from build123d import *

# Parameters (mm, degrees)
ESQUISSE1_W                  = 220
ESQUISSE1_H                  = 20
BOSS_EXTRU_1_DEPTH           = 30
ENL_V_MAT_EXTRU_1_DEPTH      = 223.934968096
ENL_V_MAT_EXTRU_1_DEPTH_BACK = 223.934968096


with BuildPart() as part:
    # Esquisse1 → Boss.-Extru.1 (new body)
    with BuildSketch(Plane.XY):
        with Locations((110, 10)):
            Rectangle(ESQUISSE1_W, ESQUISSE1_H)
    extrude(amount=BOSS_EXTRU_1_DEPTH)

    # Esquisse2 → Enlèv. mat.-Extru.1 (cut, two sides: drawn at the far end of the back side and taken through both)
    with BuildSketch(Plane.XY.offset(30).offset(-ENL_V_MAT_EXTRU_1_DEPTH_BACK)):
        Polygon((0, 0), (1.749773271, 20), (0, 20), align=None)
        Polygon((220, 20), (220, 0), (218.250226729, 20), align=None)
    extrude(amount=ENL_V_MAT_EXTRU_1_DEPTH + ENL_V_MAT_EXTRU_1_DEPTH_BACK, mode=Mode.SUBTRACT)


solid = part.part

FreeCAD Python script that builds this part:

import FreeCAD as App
import Part
import Sketcher

V = App.Vector
Q = App.Units.Quantity

doc = App.newDocument("Part")
body = doc.addObject("PartDesign::Body", "Body")

sketch1 = body.newObject("Sketcher::SketchObject", "Sketch")
sketch1.AttachmentSupport = (doc.getObject("XY_Plane"), [""])
sketch1.MapMode = "FlatFace"
sketch1.addGeometry([
    Part.LineSegment(V(0, 20, 0), V(0, 0, 0)),
    Part.LineSegment(V(0, 0, 0), V(220, 0, 0)),
    Part.LineSegment(V(220, 0, 0), V(220, 20, 0)),
    Part.LineSegment(V(220, 20, 0), V(0, 20, 0)),
], False)
sketch1.addConstraint([
    Sketcher.Constraint("Coincident", 0, 2, 1, 1),
    Sketcher.Constraint("Coincident", 1, 2, 2, 1),
    Sketcher.Constraint("Coincident", 2, 2, 3, 1),
    Sketcher.Constraint("Coincident", 3, 2, 0, 1),
    Sketcher.Constraint("Vertical", 0),
    Sketcher.Constraint("Horizontal", 1),
    Sketcher.Constraint("Vertical", 2),
    Sketcher.Constraint("Horizontal", 3),
    Sketcher.Constraint("Coincident", 0, 2, -1, 1),
    Sketcher.Constraint("DistanceX", 1, 1, 1, 2, 220.0),
    Sketcher.Constraint("DistanceY", 0, 2, 0, 1, 20.0),
])
pad1 = body.newObject("PartDesign::Pad", "Pad")
pad1.Profile = sketch1
pad1.Length = 30

sketch2 = body.newObject("Sketcher::SketchObject", "Sketch001")
sketch2.AttachmentSupport = (doc.getObject("XY_Plane"), [""])
sketch2.MapMode = "FlatFace"
sketch2.AttachmentOffset = App.Placement(V(0, 0, 30), App.Rotation())
sketch2.addGeometry([
    Part.LineSegment(V(0, 0, 0), V(1.7, 20, 0)),
    Part.LineSegment(V(1.7, 20, 0), V(0, 20, 0)),
    Part.LineSegment(V(0, 20, 0), V(0, 0, 0)),
    Part.LineSegment(V(220, 0, 0), V(220, 20, 0)),
    Part.LineSegment(V(220, 20, 0), V(218.3, 20, 0)),
    Part.LineSegment(V(218.3, 20, 0), V(220, 0, 0)),
], False)
sketch2.addConstraint([
    Sketcher.Constraint("Coincident", 0, 2, 1, 1),
    Sketcher.Constraint("Coincident", 1, 2, 2, 1),
    Sketcher.Constraint("Coincident", 2, 2, 0, 1),
    Sketcher.Constraint("Coincident", 3, 2, 4, 1),
    Sketcher.Constraint("Coincident", 4, 2, 5, 1),
    Sketcher.Constraint("Coincident", 5, 2, 3, 1),
    Sketcher.Constraint("Horizontal", 1),
    Sketcher.Constraint("Vertical", 2),
    Sketcher.Constraint("Vertical", 3),
    Sketcher.Constraint("Horizontal", 4),
    Sketcher.Constraint("Coincident", 2, 2, -1, 1),
    Sketcher.Constraint("PointOnObject", 5, 2, -1),
    Sketcher.Constraint("Horizontal", 1, 2, 3, 2),
    Sketcher.Constraint("Equal", 1, 4),
    Sketcher.Constraint("DistanceY", 2, 2, 2, 1, 20.0),
    Sketcher.Constraint("Angle", 0, Q("85 deg")),
    Sketcher.Constraint("DistanceX", -1, 1, 3, 2, 220.0),
])
pocket1 = body.newObject("PartDesign::Pocket", "Pocket")
pocket1.Profile = sketch2
pocket1.Type = "ThroughAll"
pocket1.Midplane = True

doc.recompute()
